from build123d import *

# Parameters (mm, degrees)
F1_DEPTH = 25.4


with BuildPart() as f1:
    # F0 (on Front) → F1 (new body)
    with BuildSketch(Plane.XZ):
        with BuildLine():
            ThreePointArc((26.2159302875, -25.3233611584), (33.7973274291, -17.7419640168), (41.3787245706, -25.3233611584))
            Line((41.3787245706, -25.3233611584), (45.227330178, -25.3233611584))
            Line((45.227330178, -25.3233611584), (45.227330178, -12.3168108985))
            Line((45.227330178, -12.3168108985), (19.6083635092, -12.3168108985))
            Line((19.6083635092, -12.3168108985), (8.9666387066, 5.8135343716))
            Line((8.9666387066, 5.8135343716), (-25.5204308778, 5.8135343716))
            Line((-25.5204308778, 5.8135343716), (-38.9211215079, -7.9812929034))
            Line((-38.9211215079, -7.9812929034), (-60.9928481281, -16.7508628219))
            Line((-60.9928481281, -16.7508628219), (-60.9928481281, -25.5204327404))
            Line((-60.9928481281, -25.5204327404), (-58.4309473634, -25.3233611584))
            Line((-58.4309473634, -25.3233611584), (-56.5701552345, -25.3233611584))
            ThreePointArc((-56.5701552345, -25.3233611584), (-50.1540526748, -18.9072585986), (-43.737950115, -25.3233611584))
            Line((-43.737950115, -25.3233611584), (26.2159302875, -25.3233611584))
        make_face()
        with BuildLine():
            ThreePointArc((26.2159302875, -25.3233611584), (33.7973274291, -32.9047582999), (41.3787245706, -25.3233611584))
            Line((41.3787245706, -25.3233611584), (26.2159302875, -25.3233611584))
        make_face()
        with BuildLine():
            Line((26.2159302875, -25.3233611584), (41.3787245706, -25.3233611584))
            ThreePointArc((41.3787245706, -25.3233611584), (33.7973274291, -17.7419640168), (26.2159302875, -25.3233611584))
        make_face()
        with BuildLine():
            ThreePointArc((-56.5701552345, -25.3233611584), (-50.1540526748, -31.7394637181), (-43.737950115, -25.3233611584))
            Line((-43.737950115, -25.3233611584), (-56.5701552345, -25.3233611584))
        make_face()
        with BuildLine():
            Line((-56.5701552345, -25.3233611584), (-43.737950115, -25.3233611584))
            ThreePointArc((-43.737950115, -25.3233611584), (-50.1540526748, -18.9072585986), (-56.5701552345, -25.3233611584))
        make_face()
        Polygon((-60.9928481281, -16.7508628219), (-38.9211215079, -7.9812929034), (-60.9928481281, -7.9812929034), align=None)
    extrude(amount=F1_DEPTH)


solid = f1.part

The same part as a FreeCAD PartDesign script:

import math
import FreeCAD as App
import Part
import Sketcher
from FreeCAD import Vector
Q = App.Units.Quantity

doc = App.newDocument("Part")
body = doc.addObject("PartDesign::Body", "Body")

sketch1 = body.newObject("Sketcher::SketchObject", "Sketch")
sketch1.AttachmentSupport = (doc.getObject("XZ_Plane"), [""])
sketch1.MapMode = "FlatFace"
sketch1.addGeometry(Part.LineSegment(Vector(41.4, -25.3, 0), Vector(45.2, -25.3, 0)), False)
sketch1.addGeometry(Part.LineSegment(Vector(45.2, -25.3, 0), Vector(45.2, -12.3, 0)), False)
sketch1.addGeometry(Part.LineSegment(Vector(45.2, -12.3, 0), Vector(19.6, -12.3, 0)), False)
sketch1.addGeometry(Part.LineSegment(Vector(19.6, -12.3, 0), Vector(9, 5.8, 0)), False)
sketch1.addGeometry(Part.LineSegment(Vector(9, 5.8, 0), Vector(-25.5, 5.8, 0)), False)
sketch1.addGeometry(Part.LineSegment(Vector(-25.5, 5.8, 0), Vector(-38.9, -8, 0)), False)
sketch1.addGeometry(Part.LineSegment(Vector(-38.9, -8, 0), Vector(-61, -8, 0)), False)
sketch1.addGeometry(Part.LineSegment(Vector(-61, -8, 0), Vector(-61, -25.5, 0)), False)
sketch1.addGeometry(Part.LineSegment(Vector(-61, -25.5, 0), Vector(-58.4, -25.3, 0)), False)
sketch1.addGeometry(Part.LineSegment(Vector(-58.4, -25.3, 0), Vector(-56.6, -25.3, 0)), False)
sketch1.addGeometry(Part.ArcOfCircle(Part.Circle(Vector(-50.2, -25.3, 0), Vector(0, 0, 1), 6.4), math.radians(180), math.radians(360)), False)
sketch1.addGeometry(Part.LineSegment(Vector(-43.7, -25.3, 0), Vector(26.2, -25.3, 0)), False)
sketch1.addGeometry(Part.ArcOfCircle(Part.Circle(Vector(33.8, -25.3, 0), Vector(0, 0, 1), 7.6), math.radians(180), math.radians(360)), False)
sketch1.addConstraint(Sketcher.Constraint("Coincident", 0, 2, 1, 1))
sketch1.addConstraint(Sketcher.Constraint("Coincident", 1, 2, 2, 1))
sketch1.addConstraint(Sketcher.Constraint("Coincident", 2, 2, 3, 1))
sketch1.addConstraint(Sketcher.Constraint("Coincident", 3, 2, 4, 1))
sketch1.addConstraint(Sketcher.Constraint("Coincident", 4, 2, 5, 1))
sketch1.addConstraint(Sketcher.Constraint("Coincident", 5, 2, 6, 1))
sketch1.addConstraint(Sketcher.Constraint("Coincident", 6, 2, 7, 1))
sketch1.addConstraint(Sketcher.Constraint("Coincident", 7, 2, 8, 1))
sketch1.addConstraint(Sketcher.Constraint("Coincident", 8, 2, 9, 1))
sketch1.addConstraint(Sketcher.Constraint("Coincident", 9, 2, 10, 1))
sketch1.addConstraint(Sketcher.Constraint("Coincident", 10, 2, 11, 1))
sketch1.addConstraint(Sketcher.Constraint("Coincident", 11, 2, 12, 1))
sketch1.addConstraint(Sketcher.Constraint("Coincident", 12, 2, 0, 1))
sketch1.addConstraint(Sketcher.Constraint("Horizontal", 0))
sketch1.addConstraint(Sketcher.Constraint("Vertical", 1))
sketch1.addConstraint(Sketcher.Constraint("Horizontal", 2))
sketch1.addConstraint(Sketcher.Constraint("Horizontal", 4))
sketch1.addConstraint(Sketcher.Constraint("Horizontal", 6))
sketch1.addConstraint(Sketcher.Constraint("Vertical", 7))
sketch1.addConstraint(Sketcher.Constraint("Horizontal", 9))
sketch1.addConstraint(Sketcher.Constraint("Horizontal", 11))
sketch1.addConstraint(Sketcher.Constraint("Horizontal", 10, 3, 12, 3))
sketch1.addConstraint(Sketcher.Constraint("Horizontal", 12, 3, 0, 2))
sketch1.addConstraint(Sketcher.Constraint("Horizontal", 0, 2, 8, 2))
sketch1.addConstraint(Sketcher.Constraint("Horizontal", 9, 2, 10, 2))
sketch1.addConstraint(Sketcher.Constraint("DistanceX", 12, 3, 0, 2, Q("0.4500001 in")))
sketch1.addConstraint(Sketcher.Constraint("Radius", 10, Q("6.416103 mm")))
sketch1.addConstraint(Sketcher.Constraint("Radius", 12, Q("7.581397 mm")))
sketch1.addConstraint(Sketcher.Constraint("DistanceX", 4, 2, 4, 1, Q("34.48707 mm")))
sketch1.addConstraint(Sketcher.Constraint("DistanceX", 11, 1, 11, 2, Q("69.95388 mm")))
sketch1.addConstraint(Sketcher.Constraint("DistanceY", 1, 1, 1, 2, Q("13.00655 mm")))
sketch1.addConstraint(Sketcher.Constraint("DistanceY", 7, 2, 7, 1, Q("17.53914 mm")))
sketch1.addConstraint(Sketcher.Constraint("DistanceX", 7, 2, 8, 2, Q("2.561901 mm")))
sketch1.addConstraint(Sketcher.Constraint("DistanceX", 7, 2, 10, 2, Q("17.254898 mm")))
sketch1.addConstraint(Sketcher.Constraint("Distance", 8, Q("2.569469 mm")))
sketch1.addConstraint(Sketcher.Constraint("DistanceX", 2, 2, 2, 1, Q("25.618967 mm")))
sketch1.addConstraint(Sketcher.Constraint("DistanceX", 6, 2, 6, 1, Q("22.071727 mm")))
sketch1.addConstraint(Sketcher.Constraint("DistanceY", 10, 3, -1, 1, Q("25.323361 mm")))
sketch1.addConstraint(Sketcher.Constraint("DistanceX", -1, 1, 0, 2, Q("45.22733 mm")))
sketch1.addConstraint(Sketcher.Constraint("DistanceX", -1, 1, 3, 2, Q("8.966639 mm")))
sketch1.addConstraint(Sketcher.Constraint("Distance", 3, Q("21.022743 mm")))
pad1 = body.newObject("PartDesign::Pad", "Pad")
pad1.Profile = sketch1
pad1.Length = Q("1 in")

doc.recompute()
